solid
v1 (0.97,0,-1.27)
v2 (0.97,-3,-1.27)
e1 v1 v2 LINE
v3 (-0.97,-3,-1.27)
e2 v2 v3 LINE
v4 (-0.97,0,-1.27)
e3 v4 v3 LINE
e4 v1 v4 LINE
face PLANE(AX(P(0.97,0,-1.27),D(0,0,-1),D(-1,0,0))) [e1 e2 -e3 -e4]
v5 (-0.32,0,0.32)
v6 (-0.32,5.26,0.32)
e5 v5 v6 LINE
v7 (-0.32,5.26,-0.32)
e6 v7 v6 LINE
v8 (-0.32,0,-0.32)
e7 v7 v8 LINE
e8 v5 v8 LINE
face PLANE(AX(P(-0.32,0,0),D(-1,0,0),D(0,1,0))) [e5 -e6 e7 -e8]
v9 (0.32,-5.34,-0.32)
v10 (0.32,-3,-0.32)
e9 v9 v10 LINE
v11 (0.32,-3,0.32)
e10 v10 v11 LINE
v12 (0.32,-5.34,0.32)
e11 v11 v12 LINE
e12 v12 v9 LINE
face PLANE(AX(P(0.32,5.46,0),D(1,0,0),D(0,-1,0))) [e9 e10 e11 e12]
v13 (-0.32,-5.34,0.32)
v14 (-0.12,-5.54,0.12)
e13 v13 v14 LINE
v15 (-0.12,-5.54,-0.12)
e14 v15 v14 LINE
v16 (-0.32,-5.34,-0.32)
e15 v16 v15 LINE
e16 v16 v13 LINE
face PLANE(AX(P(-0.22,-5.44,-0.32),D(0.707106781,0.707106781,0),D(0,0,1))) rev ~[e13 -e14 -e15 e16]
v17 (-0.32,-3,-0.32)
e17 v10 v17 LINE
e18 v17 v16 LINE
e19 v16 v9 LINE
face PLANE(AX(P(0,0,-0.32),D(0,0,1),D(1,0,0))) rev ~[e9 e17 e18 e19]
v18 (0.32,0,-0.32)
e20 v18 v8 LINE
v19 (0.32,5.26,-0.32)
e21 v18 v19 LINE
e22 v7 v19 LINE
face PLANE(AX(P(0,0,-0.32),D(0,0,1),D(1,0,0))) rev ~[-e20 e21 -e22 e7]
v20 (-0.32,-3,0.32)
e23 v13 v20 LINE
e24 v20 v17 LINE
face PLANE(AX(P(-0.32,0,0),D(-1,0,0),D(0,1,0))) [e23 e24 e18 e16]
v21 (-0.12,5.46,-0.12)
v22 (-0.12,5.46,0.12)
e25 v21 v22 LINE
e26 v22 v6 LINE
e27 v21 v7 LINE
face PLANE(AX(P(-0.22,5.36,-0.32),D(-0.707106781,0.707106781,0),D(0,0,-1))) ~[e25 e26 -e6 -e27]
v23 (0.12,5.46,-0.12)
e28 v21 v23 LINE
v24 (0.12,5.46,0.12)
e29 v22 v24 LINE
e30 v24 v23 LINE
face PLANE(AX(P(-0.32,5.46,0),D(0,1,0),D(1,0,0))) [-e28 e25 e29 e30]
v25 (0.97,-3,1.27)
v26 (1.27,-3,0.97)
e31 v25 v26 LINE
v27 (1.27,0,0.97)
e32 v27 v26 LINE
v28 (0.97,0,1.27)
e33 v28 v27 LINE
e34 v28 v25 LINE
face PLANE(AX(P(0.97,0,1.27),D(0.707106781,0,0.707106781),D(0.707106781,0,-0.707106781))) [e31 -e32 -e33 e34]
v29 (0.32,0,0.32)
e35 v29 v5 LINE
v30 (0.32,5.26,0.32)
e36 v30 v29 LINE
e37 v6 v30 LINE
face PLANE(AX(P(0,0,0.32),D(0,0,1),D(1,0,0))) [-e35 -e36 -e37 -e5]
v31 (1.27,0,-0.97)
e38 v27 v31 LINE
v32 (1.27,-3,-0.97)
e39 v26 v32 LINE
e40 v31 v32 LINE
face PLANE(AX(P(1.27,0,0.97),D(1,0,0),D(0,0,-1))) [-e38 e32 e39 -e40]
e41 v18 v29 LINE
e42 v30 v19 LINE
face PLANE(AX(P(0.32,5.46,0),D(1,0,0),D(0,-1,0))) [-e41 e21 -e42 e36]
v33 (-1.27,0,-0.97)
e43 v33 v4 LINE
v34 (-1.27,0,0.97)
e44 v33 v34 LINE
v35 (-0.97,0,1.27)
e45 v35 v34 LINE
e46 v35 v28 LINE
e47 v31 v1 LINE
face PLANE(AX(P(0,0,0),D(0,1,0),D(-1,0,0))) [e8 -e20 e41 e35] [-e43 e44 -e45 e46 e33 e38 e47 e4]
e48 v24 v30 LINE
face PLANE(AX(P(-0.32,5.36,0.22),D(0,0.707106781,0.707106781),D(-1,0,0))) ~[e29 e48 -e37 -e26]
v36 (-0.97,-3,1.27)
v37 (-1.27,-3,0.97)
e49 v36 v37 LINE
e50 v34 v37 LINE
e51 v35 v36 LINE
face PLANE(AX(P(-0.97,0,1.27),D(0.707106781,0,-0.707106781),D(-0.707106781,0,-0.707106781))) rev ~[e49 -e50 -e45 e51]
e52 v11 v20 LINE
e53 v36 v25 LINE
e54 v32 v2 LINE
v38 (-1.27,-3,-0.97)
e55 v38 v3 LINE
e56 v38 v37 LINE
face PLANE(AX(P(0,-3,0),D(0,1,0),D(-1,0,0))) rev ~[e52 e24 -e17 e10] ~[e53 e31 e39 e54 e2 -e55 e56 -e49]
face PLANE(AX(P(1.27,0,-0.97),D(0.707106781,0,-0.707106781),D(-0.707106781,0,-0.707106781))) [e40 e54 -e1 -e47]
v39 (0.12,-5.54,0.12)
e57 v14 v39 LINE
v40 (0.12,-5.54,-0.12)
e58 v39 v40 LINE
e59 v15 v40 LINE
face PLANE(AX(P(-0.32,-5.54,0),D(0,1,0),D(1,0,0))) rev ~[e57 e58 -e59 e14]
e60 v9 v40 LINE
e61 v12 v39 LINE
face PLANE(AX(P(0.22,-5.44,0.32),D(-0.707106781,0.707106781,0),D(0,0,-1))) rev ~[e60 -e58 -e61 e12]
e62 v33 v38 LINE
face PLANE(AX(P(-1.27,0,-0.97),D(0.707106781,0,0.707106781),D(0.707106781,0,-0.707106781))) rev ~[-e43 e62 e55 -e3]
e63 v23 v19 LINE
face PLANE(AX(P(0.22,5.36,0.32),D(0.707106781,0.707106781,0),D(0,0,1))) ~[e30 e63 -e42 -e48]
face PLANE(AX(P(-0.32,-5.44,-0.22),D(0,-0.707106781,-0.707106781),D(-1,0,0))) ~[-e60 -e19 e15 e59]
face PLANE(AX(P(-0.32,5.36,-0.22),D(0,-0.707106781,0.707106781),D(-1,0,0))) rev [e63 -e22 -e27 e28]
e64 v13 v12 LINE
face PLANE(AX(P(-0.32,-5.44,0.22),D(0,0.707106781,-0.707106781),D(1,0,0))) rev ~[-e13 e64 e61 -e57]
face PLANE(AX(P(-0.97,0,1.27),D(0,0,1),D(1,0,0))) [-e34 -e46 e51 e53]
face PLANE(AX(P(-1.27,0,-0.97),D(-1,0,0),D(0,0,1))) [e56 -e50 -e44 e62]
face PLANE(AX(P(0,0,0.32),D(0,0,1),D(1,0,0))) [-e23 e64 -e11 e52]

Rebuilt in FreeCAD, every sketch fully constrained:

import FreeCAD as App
import Part
import Sketcher

V = App.Vector
Q = App.Units.Quantity


def edges_at(feature, points):
    """Names of the edges that pass closest to the given points."""
    edges = feature.Shape.Edges
    near = lambda p: min(range(len(edges)), key=lambda i: edges[i].distToShape(Part.Vertex(*p))[0])
    return sorted({f"Edge{near(p) + 1}" for p in points})

doc = App.newDocument("Part")
params = doc.addObject("Spreadsheet::Sheet", "Params")
for row, (alias, value) in enumerate([
    ("sketch1_height", "11 mm"),
    ("sketch1_width", "0.64 mm"),
    ("pad1_length", "0.64 mm"),
    ("chamfer_size", "0.2 mm"),
    ("pad2_length", "3 mm"),
], start=1):
    params.set(f"A{row}", alias)
    params.set(f"B{row}", "=" + value)
    params.setAlias(f"B{row}", alias)

body = doc.addObject("PartDesign::Body", "Body")

# Sketch on XY plane
sketch1 = doc.addObject("Sketcher::SketchObject", "Sketch")
body.addObject(sketch1)
sketch1.AttachmentSupport = (doc.XY_Plane, [""])
sketch1.MapMode = "FlatFace"
sketch1.addGeometry([
    Part.LineSegment(V(0.32, 5.46, 0), V(-0.32, 5.46, 0)),
    Part.LineSegment(V(-0.32, 5.46, 0), V(-0.32, -5.54, 0)),
    Part.LineSegment(V(-0.32, -5.54, 0), V(0.32, -5.54, 0)),
    Part.LineSegment(V(0.32, -5.54, 0), V(0.32, 5.46, 0)),
], False)
sketch1.addConstraint([
    Sketcher.Constraint("Coincident", 0, 2, 1, 1),
    Sketcher.Constraint("Coincident", 1, 2, 2, 1),
    Sketcher.Constraint("Coincident", 2, 2, 3, 1),
    Sketcher.Constraint("Coincident", 3, 2, 0, 1),
    Sketcher.Constraint("Horizontal", 0),
    Sketcher.Constraint("Vertical", 1),
    Sketcher.Constraint("Horizontal", 2),
    Sketcher.Constraint("Vertical", 3),
    Sketcher.Constraint("DistanceY", 1, 2, 1, 1, Q("11 mm")),
    Sketcher.Constraint("DistanceX", 0, 2, 0, 1, Q("0.64 mm")),
    Sketcher.Constraint("DistanceY", -1, 1, 0, 2, Q("5.46 mm")),
    Sketcher.Constraint("DistanceX", 0, 2, -1, 1, Q("0.32 mm")),
])
sketch1.setExpression("Constraints[8]", "Params.sketch1_height")
sketch1.setExpression("Constraints[9]", "Params.sketch1_width")
pad1 = doc.addObject("PartDesign::Pad", "Pad")
body.addObject(pad1)
pad1.Profile = sketch1
pad1.setExpression("Length", "Params.pad1_length")
pad1.Midplane = True
doc.recompute()

chamfer = doc.addObject("PartDesign::Chamfer", "Chamfer")
body.addObject(chamfer)
chamfer.Base = (pad1, edges_at(pad1, [
    (0.32, 5.46, 0),
    (0, 5.46, 0.32),
    (-0.32, 5.46, 0),
    (0, 5.46, -0.32),
    (-0.32, -5.54, 0),
    (0, -5.54, 0.32),
    (0.32, -5.54, 0),
    (0, -5.54, -0.32),
]))
chamfer.setExpression("Size", "Params.chamfer_size")

# Sketch on XZ plane
sketch2 = doc.addObject("Sketcher::SketchObject", "Sketch001")
body.addObject(sketch2)
sketch2.AttachmentSupport = (doc.XZ_Plane, [""])
sketch2.MapMode = "FlatFace"
sketch2.addGeometry([
    Part.LineSegment(V(1.27, -0.97, 0), V(0.97, -1.27, 0)),  # 0
    Part.LineSegment(V(0.97, -1.27, 0), V(-0.97, -1.27, 0)),  # 1
    Part.LineSegment(V(-0.97, -1.27, 0), V(-1.27, -0.97, 0)),  # 2
    Part.LineSegment(V(-1.27, -0.97, 0), V(-1.27, 0.97, 0)),  # 3
    Part.LineSegment(V(-1.27, 0.97, 0), V(-0.97, 1.27, 0)),  # 4
    Part.LineSegment(V(-0.97, 1.27, 0), V(0.97, 1.27, 0)),  # 5
    Part.LineSegment(V(0.97, 1.27, 0), V(1.27, 0.97, 0)),  # 6
    Part.LineSegment(V(1.27, 0.97, 0), V(1.27, -0.97, 0)),  # 7
], False)
sketch2.addConstraint([
    Sketcher.Constraint("Coincident", 0, 2, 1, 1),
    Sketcher.Constraint("Coincident", 1, 2, 2, 1),
    Sketcher.Constraint("Coincident", 2, 2, 3, 1),
    Sketcher.Constraint("Coincident", 3, 2, 4, 1),
    Sketcher.Constraint("Coincident", 4, 2, 5, 1),
    Sketcher.Constraint("Coincident", 5, 2, 6, 1),
    Sketcher.Constraint("Coincident", 6, 2, 7, 1),
    Sketcher.Constraint("Coincident", 7, 2, 0, 1),
    Sketcher.Constraint("Horizontal", 1),
    Sketcher.Constraint("Vertical", 3),
    Sketcher.Constraint("Horizontal", 5),
    Sketcher.Constraint("Vertical", 7),
    Sketcher.Constraint("Symmetric", 0, 2, 4, 2, -1, 1),
    Sketcher.Constraint("Symmetric", 2, 2, 6, 2, -1, 1),
    Sketcher.Constraint("Perpendicular", 0, 2),
    Sketcher.Constraint("Perpendicular", 2, 4),
    Sketcher.Constraint("Perpendicular", 4, 6),
    Sketcher.Constraint("Horizontal", 3, 2, 6, 2),
    Sketcher.Constraint("Vertical", 1, 2, 4, 2),
    Sketcher.Constraint("Equal", 5, 3),
    Sketcher.Constraint("DistanceX", 2, 2, 1, 2, Q("0.3 mm")),
    Sketcher.Constraint("DistanceY", 1, 2, 4, 2, Q("2.54 mm")),
])
pad2 = doc.addObject("PartDesign::Pad", "Pad001")
body.addObject(pad2)
pad2.Profile = sketch2
pad2.setExpression("Length", "Params.pad2_length")

doc.recompute()
